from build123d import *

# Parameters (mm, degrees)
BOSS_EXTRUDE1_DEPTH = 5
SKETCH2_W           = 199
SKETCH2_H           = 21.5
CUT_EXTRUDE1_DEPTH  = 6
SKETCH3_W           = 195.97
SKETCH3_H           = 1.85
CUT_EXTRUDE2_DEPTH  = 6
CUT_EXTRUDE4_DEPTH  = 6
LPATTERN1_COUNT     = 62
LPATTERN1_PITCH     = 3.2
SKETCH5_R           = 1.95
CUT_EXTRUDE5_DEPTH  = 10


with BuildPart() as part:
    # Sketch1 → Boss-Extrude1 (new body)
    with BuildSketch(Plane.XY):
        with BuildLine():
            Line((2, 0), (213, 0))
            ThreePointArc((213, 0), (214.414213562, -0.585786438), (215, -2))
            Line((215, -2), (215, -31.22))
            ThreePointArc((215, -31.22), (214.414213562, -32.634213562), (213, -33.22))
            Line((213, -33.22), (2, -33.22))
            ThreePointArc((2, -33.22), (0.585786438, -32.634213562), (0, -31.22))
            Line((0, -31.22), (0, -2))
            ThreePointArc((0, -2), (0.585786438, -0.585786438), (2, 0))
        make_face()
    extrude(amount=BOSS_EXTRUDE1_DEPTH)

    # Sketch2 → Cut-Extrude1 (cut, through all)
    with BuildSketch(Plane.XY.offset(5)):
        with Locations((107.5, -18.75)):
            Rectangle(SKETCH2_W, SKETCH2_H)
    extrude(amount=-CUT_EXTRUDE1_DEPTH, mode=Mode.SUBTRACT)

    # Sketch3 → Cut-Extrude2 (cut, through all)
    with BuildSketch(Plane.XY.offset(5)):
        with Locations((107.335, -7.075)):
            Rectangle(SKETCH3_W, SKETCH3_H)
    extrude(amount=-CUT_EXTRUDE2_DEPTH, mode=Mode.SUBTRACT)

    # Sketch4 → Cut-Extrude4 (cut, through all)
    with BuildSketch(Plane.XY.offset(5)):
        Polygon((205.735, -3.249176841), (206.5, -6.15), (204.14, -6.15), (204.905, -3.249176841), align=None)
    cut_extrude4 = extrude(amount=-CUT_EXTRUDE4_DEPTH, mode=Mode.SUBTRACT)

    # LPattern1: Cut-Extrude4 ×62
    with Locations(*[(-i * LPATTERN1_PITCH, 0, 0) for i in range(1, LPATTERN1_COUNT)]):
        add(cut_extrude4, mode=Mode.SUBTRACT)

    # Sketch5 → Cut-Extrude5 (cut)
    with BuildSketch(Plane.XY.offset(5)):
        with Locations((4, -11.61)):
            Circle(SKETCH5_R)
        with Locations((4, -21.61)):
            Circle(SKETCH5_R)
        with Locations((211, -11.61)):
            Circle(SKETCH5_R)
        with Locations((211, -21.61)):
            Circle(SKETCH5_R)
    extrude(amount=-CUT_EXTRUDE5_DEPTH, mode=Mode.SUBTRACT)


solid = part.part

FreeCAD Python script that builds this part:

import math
import FreeCAD as App
import Part
import Sketcher

V = App.Vector

doc = App.newDocument("Part")
body = doc.addObject("PartDesign::Body", "Body")

# Sketch on XY plane
sketch1 = body.newObject("Sketcher::SketchObject", "Sketch")
sketch1.AttachmentSupport = (doc.getObject("XY_Plane"), [""])
sketch1.MapMode = "FlatFace"
sketch1.addGeometry(Part.LineSegment(V(213, 0, 0), V(2, 0, 0)), False)
sketch1.addGeometry(Part.ArcOfCircle(Part.Circle(V(2, -2, 0), V(0, 0, 1), 2), math.radians(90), math.radians(180)), False)
sketch1.addGeometry(Part.LineSegment(V(0, -2, 0), V(0, -31.22, 0)), False)
sketch1.addGeometry(Part.ArcOfCircle(Part.Circle(V(2, -31.22, 0), V(0, 0, 1), 2), math.radians(-180), math.radians(-90)), False)
sketch1.addGeometry(Part.LineSegment(V(2, -33.22, 0), V(213, -33.22, 0)), False)
sketch1.addGeometry(Part.ArcOfCircle(Part.Circle(V(213, -31.22, 0), V(0, 0, 1), 2), math.radians(-90), math.radians(0)), False)
sketch1.addGeometry(Part.LineSegment(V(215, -31.22, 0), V(215, -2, 0)), False)
sketch1.addGeometry(Part.ArcOfCircle(Part.Circle(V(213, -2, 0), V(0, 0, 1), 2), math.radians(0), math.radians(90)), False)
sketch1.addConstraint(Sketcher.Constraint("Tangent", 0, 2, 1, 1))
sketch1.addConstraint(Sketcher.Constraint("Tangent", 1, 2, 2, 1))
sketch1.addConstraint(Sketcher.Constraint("Tangent", 2, 2, 3, 1))
sketch1.addConstraint(Sketcher.Constraint("Tangent", 3, 2, 4, 1))
sketch1.addConstraint(Sketcher.Constraint("Tangent", 4, 2, 5, 1))
sketch1.addConstraint(Sketcher.Constraint("Tangent", 5, 2, 6, 1))
sketch1.addConstraint(Sketcher.Constraint("Tangent", 6, 2, 7, 1))
sketch1.addConstraint(Sketcher.Constraint("Tangent", 7, 2, 0, 1))
sketch1.addConstraint(Sketcher.Constraint("Horizontal", 0))
sketch1.addConstraint(Sketcher.Constraint("Vertical", 2))
sketch1.addConstraint(Sketcher.Constraint("Horizontal", 4))
sketch1.addConstraint(Sketcher.Constraint("Vertical", 6))
sketch1.addConstraint(Sketcher.Constraint("Equal", 1, 3))
sketch1.addConstraint(Sketcher.Constraint("Equal", 3, 5))
sketch1.addConstraint(Sketcher.Constraint("Equal", 5, 7))
sketch1.addConstraint(Sketcher.Constraint("PointOnObject", 0, 2, -1))
sketch1.addConstraint(Sketcher.Constraint("PointOnObject", 1, 2, -2))
sketch1.addConstraint(Sketcher.Constraint("Radius", 1, 2.0))
sketch1.addConstraint(Sketcher.Constraint("DistanceX", 0, 2, 0, 1, 211.0))
sketch1.addConstraint(Sketcher.Constraint("DistanceY", 2, 2, 2, 1, 29.22))
pad1 = body.newObject("PartDesign::Pad", "Pad")
pad1.Profile = sketch1
pad1.Length = 5

# Sketch on XY plane
sketch2 = body.newObject("Sketcher::SketchObject", "Sketch001")
sketch2.AttachmentSupport = (doc.getObject("XY_Plane"), [""])
sketch2.MapMode = "FlatFace"
sketch2.AttachmentOffset = App.Placement(V(0, 0, 5), App.Rotation())
sketch2.addGeometry(Part.LineSegment(V(8, -8, 0), V(8, -29.5, 0)), False)
sketch2.addGeometry(Part.LineSegment(V(8, -29.5, 0), V(207, -29.5, 0)), False)
sketch2.addGeometry(Part.LineSegment(V(207, -29.5, 0), V(207, -8, 0)), False)
sketch2.addGeometry(Part.LineSegment(V(207, -8, 0), V(8, -8, 0)), False)
sketch2.addConstraint(Sketcher.Constraint("Coincident", 0, 2, 1, 1))
sketch2.addConstraint(Sketcher.Constraint("Coincident", 1, 2, 2, 1))
sketch2.addConstraint(Sketcher.Constraint("Coincident", 2, 2, 3, 1))
sketch2.addConstraint(Sketcher.Constraint("Coincident", 3, 2, 0, 1))
sketch2.addConstraint(Sketcher.Constraint("Vertical", 0))
sketch2.addConstraint(Sketcher.Constraint("Horizontal", 1))
sketch2.addConstraint(Sketcher.Constraint("Vertical", 2))
sketch2.addConstraint(Sketcher.Constraint("Horizontal", 3))
sketch2.addConstraint(Sketcher.Constraint("DistanceX", 1, 1, 1, 2, 199.0))
sketch2.addConstraint(Sketcher.Constraint("DistanceY", 0, 2, 0, 1, 21.5))
sketch2.addConstraint(Sketcher.Constraint("DistanceX", -1, 1, 0, 2, 8.0))
sketch2.addConstraint(Sketcher.Constraint("DistanceY", 2, 2, -1, 1, 8.0))
pocket1 = body.newObject("PartDesign::Pocket", "Pocket")
pocket1.Profile = sketch2
pocket1.Type = "ThroughAll"

# Sketch on XY plane
sketch3 = body.newObject("Sketcher::SketchObject", "Sketch002")
sketch3.AttachmentSupport = (doc.getObject("XY_Plane"), [""])
sketch3.MapMode = "FlatFace"
sketch3.AttachmentOffset = App.Placement(V(0, 0, 5), App.Rotation())
sketch3.addGeometry(Part.LineSegment(V(9.35, -6.15, 0), V(9.35, -8, 0)), False)
sketch3.addGeometry(Part.LineSegment(V(9.35, -8, 0), V(205.32, -8, 0)), False)
sketch3.addGeometry(Part.LineSegment(V(205.32, -8, 0), V(205.32, -6.15, 0)), False)
sketch3.addGeometry(Part.LineSegment(V(205.32, -6.15, 0), V(9.35, -6.15, 0)), False)
sketch3.addConstraint(Sketcher.Constraint("Coincident", 0, 2, 1, 1))
sketch3.addConstraint(Sketcher.Constraint("Coincident", 1, 2, 2, 1))
sketch3.addConstraint(Sketcher.Constraint("Coincident", 2, 2, 3, 1))
sketch3.addConstraint(Sketcher.Constraint("Coincident", 3, 2, 0, 1))
sketch3.addConstraint(Sketcher.Constraint("Vertical", 0))
sketch3.addConstraint(Sketcher.Constraint("Horizontal", 1))
sketch3.addConstraint(Sketcher.Constraint("Vertical", 2))
sketch3.addConstraint(Sketcher.Constraint("Horizontal", 3))
sketch3.addConstraint(Sketcher.Constraint("DistanceY", 0, 2, -1, 1, 8.0))
sketch3.addConstraint(Sketcher.Constraint("DistanceX", 1, 1, 1, 2, 195.97))
sketch3.addConstraint(Sketcher.Constraint("DistanceY", 0, 2, 0, 1, 1.85))
sketch3.addConstraint(Sketcher.Constraint("DistanceX", -1, 1, 0, 2, 9.35))
pocket2 = body.newObject("PartDesign::Pocket", "Pocket001")
pocket2.Profile = sketch3
pocket2.Type = "ThroughAll"

# Sketch on XY plane
sketch4 = body.newObject("Sketcher::SketchObject", "Sketch003")
sketch4.AttachmentSupport = (doc.getObject("XY_Plane"), [""])
sketch4.MapMode = "FlatFace"
sketch4.AttachmentOffset = App.Placement(V(0, 0, 5), App.Rotation())
sketch4.addGeometry(Part.LineSegment(V(206.5, -6.15, 0), V(205.735, -3.249177, 0)), False)
sketch4.addGeometry(Part.LineSegment(V(205.735, -3.249177, 0), V(204.905, -3.249177, 0)), False)
sketch4.addGeometry(Part.LineSegment(V(204.905, -3.249177, 0), V(204.14, -6.15, 0)), False)
sketch4.addGeometry(Part.LineSegment(V(204.14, -6.15, 0), V(206.5, -6.15, 0)), False)
sketch4.addConstraint(Sketcher.Constraint("Coincident", 0, 2, 1, 1))
sketch4.addConstraint(Sketcher.Constraint("Coincident", 1, 2, 2, 1))
sketch4.addConstraint(Sketcher.Constraint("Coincident", 2, 2, 3, 1))
sketch4.addConstraint(Sketcher.Constraint("Coincident", 3, 2, 0, 1))
sketch4.addConstraint(Sketcher.Constraint("Horizontal", 1))
sketch4.addConstraint(Sketcher.Constraint("Horizontal", 3))
sketch4.addConstraint(Sketcher.Constraint("Equal", 0, 2))
sketch4.addConstraint(Sketcher.Constraint("Distance", 0, 3.0))
sketch4.addConstraint(Sketcher.Constraint("DistanceX", 1, 2, 1, 1, 0.83))
sketch4.addConstraint(Sketcher.Constraint("DistanceX", 3, 1, 3, 2, 2.36))
sketch4.addConstraint(Sketcher.Constraint("DistanceX", -1, 1, 3, 2, 206.5))
sketch4.addConstraint(Sketcher.Constraint("DistanceY", 2, 2, -1, 1, 6.15))
pocket3 = body.newObject("PartDesign::Pocket", "Pocket002")
pocket3.Profile = sketch4
pocket3.Type = "ThroughAll"
doc.recompute()

linearpattern = body.newObject("PartDesign::LinearPattern", "LinearPattern")
linearpattern.Originals = [pocket3]
linearpattern.Direction = (doc.getObject("X_Axis"), [""])
linearpattern.Mode = "offset"
linearpattern.Offset = 3.2
linearpattern.Occurrences = 62
linearpattern.Reversed = True
body.Tip = linearpattern

# Sketch on XY plane
sketch5 = body.newObject("Sketcher::SketchObject", "Sketch004")
sketch5.AttachmentSupport = (doc.getObject("XY_Plane"), [""])
sketch5.MapMode = "FlatFace"
sketch5.AttachmentOffset = App.Placement(V(0, 0, 5), App.Rotation())
sketch5.addGeometry(Part.Circle(V(4, -11.61, 0), V(0, 0, 1), 1.95), False)
sketch5.addGeometry(Part.Circle(V(4, -21.61, 0), V(0, 0, 1), 1.95), False)
sketch5.addGeometry(Part.Circle(V(211, -11.61, 0), V(0, 0, 1), 1.95), False)
sketch5.addGeometry(Part.Circle(V(211, -21.61, 0), V(0, 0, 1), 1.95), False)
sketch5.addConstraint(Sketcher.Constraint("Equal", 0, 1))
sketch5.addConstraint(Sketcher.Constraint("Equal", 1, 2))
sketch5.addConstraint(Sketcher.Constraint("Equal", 2, 3))
sketch5.addConstraint(Sketcher.Constraint("Horizontal", 0, 3, 2, 3))
sketch5.addConstraint(Sketcher.Constraint("Horizontal", 1, 3, 3, 3))
sketch5.addConstraint(Sketcher.Constraint("Vertical", 0, 3, 1, 3))
sketch5.addConstraint(Sketcher.Constraint("Vertical", 2, 3, 3, 3))
sketch5.addConstraint(Sketcher.Constraint("Diameter", 0, 3.9))
sketch5.addConstraint(Sketcher.Constraint("DistanceX", -1, 1, 0, 3, 4.0))
sketch5.addConstraint(Sketcher.Constraint("DistanceX", -1, 1, 2, 3, 211.0))
sketch5.addConstraint(Sketcher.Constraint("DistanceY", 1, 3, 0, 3, 10.0))
sketch5.addConstraint(Sketcher.Constraint("DistanceY", 0, 3, -1, 1, 11.61))
pocket4 = body.newObject("PartDesign::Pocket", "Pocket003")
pocket4.Profile = sketch5
pocket4.Length = 10

doc.recompute()
